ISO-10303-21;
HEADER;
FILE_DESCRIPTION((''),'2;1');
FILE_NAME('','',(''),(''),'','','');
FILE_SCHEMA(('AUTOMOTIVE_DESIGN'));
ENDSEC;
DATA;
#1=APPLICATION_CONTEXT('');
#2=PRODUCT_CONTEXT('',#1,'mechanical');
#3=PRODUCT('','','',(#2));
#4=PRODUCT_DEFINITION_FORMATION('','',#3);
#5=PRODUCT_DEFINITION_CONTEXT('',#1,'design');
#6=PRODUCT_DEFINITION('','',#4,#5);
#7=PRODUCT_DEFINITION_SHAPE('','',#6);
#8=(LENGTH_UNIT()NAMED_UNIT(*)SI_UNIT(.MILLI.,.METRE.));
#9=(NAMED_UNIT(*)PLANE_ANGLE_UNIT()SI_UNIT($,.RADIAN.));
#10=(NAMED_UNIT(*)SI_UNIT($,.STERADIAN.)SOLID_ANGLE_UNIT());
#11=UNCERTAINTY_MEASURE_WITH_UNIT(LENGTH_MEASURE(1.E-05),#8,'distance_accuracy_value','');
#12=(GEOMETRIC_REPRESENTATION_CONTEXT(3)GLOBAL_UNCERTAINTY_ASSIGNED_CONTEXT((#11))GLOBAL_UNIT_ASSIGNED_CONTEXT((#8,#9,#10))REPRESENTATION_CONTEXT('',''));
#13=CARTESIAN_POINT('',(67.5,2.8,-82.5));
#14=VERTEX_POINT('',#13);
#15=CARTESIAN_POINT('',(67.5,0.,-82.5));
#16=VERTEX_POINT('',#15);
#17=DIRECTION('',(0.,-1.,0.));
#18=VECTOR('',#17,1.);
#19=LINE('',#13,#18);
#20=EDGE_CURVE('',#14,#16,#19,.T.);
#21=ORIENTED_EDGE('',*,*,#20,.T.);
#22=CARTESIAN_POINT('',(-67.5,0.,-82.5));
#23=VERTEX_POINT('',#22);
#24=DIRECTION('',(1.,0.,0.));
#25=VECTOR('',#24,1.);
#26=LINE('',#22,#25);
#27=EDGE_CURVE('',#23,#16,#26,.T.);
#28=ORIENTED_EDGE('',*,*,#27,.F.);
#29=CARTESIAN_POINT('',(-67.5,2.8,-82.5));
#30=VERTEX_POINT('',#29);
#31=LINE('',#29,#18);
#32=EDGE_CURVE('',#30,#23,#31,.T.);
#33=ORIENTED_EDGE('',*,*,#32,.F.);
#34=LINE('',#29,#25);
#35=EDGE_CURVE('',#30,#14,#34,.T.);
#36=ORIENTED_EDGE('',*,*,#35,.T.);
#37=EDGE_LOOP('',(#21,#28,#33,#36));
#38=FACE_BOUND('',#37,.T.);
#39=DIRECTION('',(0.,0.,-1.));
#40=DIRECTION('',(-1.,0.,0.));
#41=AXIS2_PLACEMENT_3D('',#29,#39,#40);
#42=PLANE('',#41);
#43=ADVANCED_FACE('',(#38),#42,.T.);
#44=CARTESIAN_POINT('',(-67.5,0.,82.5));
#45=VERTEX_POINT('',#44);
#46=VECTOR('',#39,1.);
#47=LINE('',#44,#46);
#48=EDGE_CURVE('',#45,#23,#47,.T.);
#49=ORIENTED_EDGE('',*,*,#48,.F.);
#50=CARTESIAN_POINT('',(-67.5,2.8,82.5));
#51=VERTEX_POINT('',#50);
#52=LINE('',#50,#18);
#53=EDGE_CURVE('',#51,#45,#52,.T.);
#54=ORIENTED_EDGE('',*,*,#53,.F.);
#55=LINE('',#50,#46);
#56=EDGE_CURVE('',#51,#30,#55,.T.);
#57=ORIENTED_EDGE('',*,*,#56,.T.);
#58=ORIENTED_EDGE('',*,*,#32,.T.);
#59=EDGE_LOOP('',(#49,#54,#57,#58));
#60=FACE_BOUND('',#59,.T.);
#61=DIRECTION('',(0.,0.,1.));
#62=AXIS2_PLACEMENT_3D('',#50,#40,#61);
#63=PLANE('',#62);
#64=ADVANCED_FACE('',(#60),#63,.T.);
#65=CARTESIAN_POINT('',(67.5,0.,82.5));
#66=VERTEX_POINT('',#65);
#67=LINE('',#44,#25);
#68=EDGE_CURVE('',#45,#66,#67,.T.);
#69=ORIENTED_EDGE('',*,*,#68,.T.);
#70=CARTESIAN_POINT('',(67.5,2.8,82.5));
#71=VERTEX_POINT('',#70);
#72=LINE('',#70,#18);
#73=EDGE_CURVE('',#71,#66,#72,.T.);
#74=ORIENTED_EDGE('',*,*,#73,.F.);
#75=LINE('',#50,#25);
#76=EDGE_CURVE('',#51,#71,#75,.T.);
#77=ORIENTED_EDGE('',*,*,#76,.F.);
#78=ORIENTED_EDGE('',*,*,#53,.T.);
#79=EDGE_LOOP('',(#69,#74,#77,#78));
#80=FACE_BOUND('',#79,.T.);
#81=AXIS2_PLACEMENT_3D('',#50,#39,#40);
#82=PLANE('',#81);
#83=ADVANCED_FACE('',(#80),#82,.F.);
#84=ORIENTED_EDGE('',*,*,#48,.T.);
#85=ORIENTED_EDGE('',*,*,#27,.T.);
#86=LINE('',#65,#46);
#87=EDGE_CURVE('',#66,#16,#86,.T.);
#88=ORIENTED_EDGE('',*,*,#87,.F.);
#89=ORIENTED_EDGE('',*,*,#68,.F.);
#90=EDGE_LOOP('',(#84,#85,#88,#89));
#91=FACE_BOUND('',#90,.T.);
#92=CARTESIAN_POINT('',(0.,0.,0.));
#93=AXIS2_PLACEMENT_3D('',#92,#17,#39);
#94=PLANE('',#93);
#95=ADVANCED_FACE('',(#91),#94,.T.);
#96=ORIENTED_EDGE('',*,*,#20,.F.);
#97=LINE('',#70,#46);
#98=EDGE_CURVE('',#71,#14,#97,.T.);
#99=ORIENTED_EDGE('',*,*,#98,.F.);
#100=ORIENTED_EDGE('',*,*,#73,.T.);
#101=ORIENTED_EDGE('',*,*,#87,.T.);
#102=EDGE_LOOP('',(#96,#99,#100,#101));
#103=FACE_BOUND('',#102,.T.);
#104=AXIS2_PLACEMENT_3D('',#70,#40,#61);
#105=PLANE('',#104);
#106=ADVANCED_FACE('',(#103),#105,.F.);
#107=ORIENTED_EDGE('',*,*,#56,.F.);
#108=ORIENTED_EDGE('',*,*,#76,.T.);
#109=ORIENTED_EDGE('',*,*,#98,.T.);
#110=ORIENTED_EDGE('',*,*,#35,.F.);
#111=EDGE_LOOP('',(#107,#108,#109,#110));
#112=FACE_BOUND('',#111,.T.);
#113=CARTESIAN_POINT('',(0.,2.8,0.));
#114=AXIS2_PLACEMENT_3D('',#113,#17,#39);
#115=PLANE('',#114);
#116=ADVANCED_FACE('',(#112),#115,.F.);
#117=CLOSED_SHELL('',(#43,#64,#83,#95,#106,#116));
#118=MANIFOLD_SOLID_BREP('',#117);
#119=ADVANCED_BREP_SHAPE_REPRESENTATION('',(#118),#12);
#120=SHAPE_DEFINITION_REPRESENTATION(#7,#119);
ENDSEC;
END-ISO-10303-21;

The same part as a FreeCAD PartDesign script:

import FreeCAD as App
import Part
import Sketcher


def add_polygon(sketch, points):
    """Adds a closed chain of lines whose ends are joined by coincident constraints."""
    first, n = sketch.GeometryCount, len(points)
    for a, b in zip(points, points[1:] + points[:1]):
        sketch.addGeometry(Part.LineSegment(App.Vector(*a, 0), App.Vector(*b, 0)), False)
    for i in range(n):
        sketch.addConstraint(Sketcher.Constraint("Coincident", first + i, 2, first + (i + 1) % n, 1))

doc = App.newDocument("Part")
body = doc.addObject("PartDesign::Body", "Body")

# Sketch on XZ plane
sketch1 = doc.addObject("Sketcher::SketchObject", "Sketch")
body.addObject(sketch1)
sketch1.AttachmentSupport = (doc.XZ_Plane, [""])
sketch1.MapMode = "FlatFace"
add_polygon(sketch1, [(-68, -82), (-68, 82), (68, 82), (68, -82)])  # lines 0-3
sketch1.addConstraint([
    Sketcher.Constraint("Vertical", 0),
    Sketcher.Constraint("Horizontal", 1),
    Sketcher.Constraint("Vertical", 2),
    Sketcher.Constraint("Horizontal", 3),
    Sketcher.Constraint("Symmetric", 0, 2, 2, 2, -1, 1),
    Sketcher.Constraint("DistanceX", 1, 1, 1, 2, 135.0),
    Sketcher.Constraint("DistanceY", 0, 1, 0, 2, 165.0),
])
pad1 = doc.addObject("PartDesign::Pad", "Pad")
body.addObject(pad1)
pad1.Profile = sketch1
pad1.Length = 2.8
pad1.Reversed = True

doc.recompute()
